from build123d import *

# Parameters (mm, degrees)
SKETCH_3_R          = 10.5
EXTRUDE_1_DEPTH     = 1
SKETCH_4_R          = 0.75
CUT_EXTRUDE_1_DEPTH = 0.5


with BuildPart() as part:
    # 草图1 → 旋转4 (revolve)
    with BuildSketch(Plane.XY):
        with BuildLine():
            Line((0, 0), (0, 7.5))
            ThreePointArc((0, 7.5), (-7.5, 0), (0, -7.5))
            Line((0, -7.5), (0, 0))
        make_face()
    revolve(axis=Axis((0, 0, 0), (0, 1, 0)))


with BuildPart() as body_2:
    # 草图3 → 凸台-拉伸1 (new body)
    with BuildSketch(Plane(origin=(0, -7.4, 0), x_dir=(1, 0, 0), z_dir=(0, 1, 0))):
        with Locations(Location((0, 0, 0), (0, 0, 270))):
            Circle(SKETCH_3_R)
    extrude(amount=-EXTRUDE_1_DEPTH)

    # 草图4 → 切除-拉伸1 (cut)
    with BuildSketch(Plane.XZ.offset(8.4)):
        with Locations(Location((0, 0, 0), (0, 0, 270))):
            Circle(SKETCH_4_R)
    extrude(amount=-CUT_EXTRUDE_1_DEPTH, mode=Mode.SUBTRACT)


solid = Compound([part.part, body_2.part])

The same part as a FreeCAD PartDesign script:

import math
import FreeCAD as App
import Part
import Sketcher

V = App.Vector

doc = App.newDocument("Part")
body = doc.addObject("PartDesign::Body", "Body")

# Sketch on XY plane
sketch1 = doc.addObject("Sketcher::SketchObject", "Sketch")
body.addObject(sketch1)
sketch1.AttachmentSupport = (doc.XY_Plane, [""])
sketch1.MapMode = "FlatFace"
sketch1.addGeometry([
    Part.ArcOfCircle(Part.Circle(V(0, 0, 0), V(0, 0, 1), 7.5), math.radians(90), math.radians(270)),
    Part.LineSegment(V(0, -7.5, 0), V(0, 7.5, 0)),
], False)
sketch1.addConstraint([
    Sketcher.Constraint("Coincident", 0, 1, 1, 2),
    Sketcher.Constraint("Coincident", 1, 1, 0, 2),
    Sketcher.Constraint("Vertical", 1),
    Sketcher.Constraint("Coincident", 0, 3, -1, 1),
    Sketcher.Constraint("PointOnObject", 0, 1, -2),
    Sketcher.Constraint("Radius", 0, 7.5),
])
revolution = doc.addObject("PartDesign::Revolution", "Revolution")
body.addObject(revolution)
revolution.Profile = sketch1
revolution.ReferenceAxis = (sketch1, ["V_Axis"])
revolution.Angle = 360
body2 = doc.addObject("PartDesign::Body", "Body001")

# Sketch on XZ plane
sketch2 = doc.addObject("Sketcher::SketchObject", "Sketch001")
body2.addObject(sketch2)
sketch2.AttachmentSupport = (doc.getObject("XZ_Plane001"), [""])
sketch2.MapMode = "FlatFace"
sketch2.AttachmentOffset = App.Placement(V(0, 0, 7.4), App.Rotation())
sketch2.addGeometry(Part.Circle(V(0, 0, 0), V(0, 0, 1), 10.5), False)
sketch2.addConstraint([
    Sketcher.Constraint("Coincident", 0, 3, -1, 1),
    Sketcher.Constraint("Diameter", 0, 21.0),
])
pad1 = doc.addObject("PartDesign::Pad", "Pad")
body2.addObject(pad1)
pad1.Profile = sketch2
pad1.Length = 1

# Sketch on XZ plane
sketch3 = doc.addObject("Sketcher::SketchObject", "Sketch002")
body2.addObject(sketch3)
sketch3.AttachmentSupport = (doc.getObject("XZ_Plane001"), [""])
sketch3.MapMode = "FlatFace"
sketch3.AttachmentOffset = App.Placement(V(0, 0, 8.4), App.Rotation())
sketch3.addGeometry(Part.Circle(V(0, 0, 0), V(0, 0, 1), 0.75), False)
sketch3.addConstraint([
    Sketcher.Constraint("Coincident", 0, 3, -1, 1),
    Sketcher.Constraint("Diameter", 0, 1.5),
])
pocket1 = doc.addObject("PartDesign::Pocket", "Pocket")
body2.addObject(pocket1)
pocket1.Profile = sketch3
pocket1.Length = 0.5

doc.recompute()
